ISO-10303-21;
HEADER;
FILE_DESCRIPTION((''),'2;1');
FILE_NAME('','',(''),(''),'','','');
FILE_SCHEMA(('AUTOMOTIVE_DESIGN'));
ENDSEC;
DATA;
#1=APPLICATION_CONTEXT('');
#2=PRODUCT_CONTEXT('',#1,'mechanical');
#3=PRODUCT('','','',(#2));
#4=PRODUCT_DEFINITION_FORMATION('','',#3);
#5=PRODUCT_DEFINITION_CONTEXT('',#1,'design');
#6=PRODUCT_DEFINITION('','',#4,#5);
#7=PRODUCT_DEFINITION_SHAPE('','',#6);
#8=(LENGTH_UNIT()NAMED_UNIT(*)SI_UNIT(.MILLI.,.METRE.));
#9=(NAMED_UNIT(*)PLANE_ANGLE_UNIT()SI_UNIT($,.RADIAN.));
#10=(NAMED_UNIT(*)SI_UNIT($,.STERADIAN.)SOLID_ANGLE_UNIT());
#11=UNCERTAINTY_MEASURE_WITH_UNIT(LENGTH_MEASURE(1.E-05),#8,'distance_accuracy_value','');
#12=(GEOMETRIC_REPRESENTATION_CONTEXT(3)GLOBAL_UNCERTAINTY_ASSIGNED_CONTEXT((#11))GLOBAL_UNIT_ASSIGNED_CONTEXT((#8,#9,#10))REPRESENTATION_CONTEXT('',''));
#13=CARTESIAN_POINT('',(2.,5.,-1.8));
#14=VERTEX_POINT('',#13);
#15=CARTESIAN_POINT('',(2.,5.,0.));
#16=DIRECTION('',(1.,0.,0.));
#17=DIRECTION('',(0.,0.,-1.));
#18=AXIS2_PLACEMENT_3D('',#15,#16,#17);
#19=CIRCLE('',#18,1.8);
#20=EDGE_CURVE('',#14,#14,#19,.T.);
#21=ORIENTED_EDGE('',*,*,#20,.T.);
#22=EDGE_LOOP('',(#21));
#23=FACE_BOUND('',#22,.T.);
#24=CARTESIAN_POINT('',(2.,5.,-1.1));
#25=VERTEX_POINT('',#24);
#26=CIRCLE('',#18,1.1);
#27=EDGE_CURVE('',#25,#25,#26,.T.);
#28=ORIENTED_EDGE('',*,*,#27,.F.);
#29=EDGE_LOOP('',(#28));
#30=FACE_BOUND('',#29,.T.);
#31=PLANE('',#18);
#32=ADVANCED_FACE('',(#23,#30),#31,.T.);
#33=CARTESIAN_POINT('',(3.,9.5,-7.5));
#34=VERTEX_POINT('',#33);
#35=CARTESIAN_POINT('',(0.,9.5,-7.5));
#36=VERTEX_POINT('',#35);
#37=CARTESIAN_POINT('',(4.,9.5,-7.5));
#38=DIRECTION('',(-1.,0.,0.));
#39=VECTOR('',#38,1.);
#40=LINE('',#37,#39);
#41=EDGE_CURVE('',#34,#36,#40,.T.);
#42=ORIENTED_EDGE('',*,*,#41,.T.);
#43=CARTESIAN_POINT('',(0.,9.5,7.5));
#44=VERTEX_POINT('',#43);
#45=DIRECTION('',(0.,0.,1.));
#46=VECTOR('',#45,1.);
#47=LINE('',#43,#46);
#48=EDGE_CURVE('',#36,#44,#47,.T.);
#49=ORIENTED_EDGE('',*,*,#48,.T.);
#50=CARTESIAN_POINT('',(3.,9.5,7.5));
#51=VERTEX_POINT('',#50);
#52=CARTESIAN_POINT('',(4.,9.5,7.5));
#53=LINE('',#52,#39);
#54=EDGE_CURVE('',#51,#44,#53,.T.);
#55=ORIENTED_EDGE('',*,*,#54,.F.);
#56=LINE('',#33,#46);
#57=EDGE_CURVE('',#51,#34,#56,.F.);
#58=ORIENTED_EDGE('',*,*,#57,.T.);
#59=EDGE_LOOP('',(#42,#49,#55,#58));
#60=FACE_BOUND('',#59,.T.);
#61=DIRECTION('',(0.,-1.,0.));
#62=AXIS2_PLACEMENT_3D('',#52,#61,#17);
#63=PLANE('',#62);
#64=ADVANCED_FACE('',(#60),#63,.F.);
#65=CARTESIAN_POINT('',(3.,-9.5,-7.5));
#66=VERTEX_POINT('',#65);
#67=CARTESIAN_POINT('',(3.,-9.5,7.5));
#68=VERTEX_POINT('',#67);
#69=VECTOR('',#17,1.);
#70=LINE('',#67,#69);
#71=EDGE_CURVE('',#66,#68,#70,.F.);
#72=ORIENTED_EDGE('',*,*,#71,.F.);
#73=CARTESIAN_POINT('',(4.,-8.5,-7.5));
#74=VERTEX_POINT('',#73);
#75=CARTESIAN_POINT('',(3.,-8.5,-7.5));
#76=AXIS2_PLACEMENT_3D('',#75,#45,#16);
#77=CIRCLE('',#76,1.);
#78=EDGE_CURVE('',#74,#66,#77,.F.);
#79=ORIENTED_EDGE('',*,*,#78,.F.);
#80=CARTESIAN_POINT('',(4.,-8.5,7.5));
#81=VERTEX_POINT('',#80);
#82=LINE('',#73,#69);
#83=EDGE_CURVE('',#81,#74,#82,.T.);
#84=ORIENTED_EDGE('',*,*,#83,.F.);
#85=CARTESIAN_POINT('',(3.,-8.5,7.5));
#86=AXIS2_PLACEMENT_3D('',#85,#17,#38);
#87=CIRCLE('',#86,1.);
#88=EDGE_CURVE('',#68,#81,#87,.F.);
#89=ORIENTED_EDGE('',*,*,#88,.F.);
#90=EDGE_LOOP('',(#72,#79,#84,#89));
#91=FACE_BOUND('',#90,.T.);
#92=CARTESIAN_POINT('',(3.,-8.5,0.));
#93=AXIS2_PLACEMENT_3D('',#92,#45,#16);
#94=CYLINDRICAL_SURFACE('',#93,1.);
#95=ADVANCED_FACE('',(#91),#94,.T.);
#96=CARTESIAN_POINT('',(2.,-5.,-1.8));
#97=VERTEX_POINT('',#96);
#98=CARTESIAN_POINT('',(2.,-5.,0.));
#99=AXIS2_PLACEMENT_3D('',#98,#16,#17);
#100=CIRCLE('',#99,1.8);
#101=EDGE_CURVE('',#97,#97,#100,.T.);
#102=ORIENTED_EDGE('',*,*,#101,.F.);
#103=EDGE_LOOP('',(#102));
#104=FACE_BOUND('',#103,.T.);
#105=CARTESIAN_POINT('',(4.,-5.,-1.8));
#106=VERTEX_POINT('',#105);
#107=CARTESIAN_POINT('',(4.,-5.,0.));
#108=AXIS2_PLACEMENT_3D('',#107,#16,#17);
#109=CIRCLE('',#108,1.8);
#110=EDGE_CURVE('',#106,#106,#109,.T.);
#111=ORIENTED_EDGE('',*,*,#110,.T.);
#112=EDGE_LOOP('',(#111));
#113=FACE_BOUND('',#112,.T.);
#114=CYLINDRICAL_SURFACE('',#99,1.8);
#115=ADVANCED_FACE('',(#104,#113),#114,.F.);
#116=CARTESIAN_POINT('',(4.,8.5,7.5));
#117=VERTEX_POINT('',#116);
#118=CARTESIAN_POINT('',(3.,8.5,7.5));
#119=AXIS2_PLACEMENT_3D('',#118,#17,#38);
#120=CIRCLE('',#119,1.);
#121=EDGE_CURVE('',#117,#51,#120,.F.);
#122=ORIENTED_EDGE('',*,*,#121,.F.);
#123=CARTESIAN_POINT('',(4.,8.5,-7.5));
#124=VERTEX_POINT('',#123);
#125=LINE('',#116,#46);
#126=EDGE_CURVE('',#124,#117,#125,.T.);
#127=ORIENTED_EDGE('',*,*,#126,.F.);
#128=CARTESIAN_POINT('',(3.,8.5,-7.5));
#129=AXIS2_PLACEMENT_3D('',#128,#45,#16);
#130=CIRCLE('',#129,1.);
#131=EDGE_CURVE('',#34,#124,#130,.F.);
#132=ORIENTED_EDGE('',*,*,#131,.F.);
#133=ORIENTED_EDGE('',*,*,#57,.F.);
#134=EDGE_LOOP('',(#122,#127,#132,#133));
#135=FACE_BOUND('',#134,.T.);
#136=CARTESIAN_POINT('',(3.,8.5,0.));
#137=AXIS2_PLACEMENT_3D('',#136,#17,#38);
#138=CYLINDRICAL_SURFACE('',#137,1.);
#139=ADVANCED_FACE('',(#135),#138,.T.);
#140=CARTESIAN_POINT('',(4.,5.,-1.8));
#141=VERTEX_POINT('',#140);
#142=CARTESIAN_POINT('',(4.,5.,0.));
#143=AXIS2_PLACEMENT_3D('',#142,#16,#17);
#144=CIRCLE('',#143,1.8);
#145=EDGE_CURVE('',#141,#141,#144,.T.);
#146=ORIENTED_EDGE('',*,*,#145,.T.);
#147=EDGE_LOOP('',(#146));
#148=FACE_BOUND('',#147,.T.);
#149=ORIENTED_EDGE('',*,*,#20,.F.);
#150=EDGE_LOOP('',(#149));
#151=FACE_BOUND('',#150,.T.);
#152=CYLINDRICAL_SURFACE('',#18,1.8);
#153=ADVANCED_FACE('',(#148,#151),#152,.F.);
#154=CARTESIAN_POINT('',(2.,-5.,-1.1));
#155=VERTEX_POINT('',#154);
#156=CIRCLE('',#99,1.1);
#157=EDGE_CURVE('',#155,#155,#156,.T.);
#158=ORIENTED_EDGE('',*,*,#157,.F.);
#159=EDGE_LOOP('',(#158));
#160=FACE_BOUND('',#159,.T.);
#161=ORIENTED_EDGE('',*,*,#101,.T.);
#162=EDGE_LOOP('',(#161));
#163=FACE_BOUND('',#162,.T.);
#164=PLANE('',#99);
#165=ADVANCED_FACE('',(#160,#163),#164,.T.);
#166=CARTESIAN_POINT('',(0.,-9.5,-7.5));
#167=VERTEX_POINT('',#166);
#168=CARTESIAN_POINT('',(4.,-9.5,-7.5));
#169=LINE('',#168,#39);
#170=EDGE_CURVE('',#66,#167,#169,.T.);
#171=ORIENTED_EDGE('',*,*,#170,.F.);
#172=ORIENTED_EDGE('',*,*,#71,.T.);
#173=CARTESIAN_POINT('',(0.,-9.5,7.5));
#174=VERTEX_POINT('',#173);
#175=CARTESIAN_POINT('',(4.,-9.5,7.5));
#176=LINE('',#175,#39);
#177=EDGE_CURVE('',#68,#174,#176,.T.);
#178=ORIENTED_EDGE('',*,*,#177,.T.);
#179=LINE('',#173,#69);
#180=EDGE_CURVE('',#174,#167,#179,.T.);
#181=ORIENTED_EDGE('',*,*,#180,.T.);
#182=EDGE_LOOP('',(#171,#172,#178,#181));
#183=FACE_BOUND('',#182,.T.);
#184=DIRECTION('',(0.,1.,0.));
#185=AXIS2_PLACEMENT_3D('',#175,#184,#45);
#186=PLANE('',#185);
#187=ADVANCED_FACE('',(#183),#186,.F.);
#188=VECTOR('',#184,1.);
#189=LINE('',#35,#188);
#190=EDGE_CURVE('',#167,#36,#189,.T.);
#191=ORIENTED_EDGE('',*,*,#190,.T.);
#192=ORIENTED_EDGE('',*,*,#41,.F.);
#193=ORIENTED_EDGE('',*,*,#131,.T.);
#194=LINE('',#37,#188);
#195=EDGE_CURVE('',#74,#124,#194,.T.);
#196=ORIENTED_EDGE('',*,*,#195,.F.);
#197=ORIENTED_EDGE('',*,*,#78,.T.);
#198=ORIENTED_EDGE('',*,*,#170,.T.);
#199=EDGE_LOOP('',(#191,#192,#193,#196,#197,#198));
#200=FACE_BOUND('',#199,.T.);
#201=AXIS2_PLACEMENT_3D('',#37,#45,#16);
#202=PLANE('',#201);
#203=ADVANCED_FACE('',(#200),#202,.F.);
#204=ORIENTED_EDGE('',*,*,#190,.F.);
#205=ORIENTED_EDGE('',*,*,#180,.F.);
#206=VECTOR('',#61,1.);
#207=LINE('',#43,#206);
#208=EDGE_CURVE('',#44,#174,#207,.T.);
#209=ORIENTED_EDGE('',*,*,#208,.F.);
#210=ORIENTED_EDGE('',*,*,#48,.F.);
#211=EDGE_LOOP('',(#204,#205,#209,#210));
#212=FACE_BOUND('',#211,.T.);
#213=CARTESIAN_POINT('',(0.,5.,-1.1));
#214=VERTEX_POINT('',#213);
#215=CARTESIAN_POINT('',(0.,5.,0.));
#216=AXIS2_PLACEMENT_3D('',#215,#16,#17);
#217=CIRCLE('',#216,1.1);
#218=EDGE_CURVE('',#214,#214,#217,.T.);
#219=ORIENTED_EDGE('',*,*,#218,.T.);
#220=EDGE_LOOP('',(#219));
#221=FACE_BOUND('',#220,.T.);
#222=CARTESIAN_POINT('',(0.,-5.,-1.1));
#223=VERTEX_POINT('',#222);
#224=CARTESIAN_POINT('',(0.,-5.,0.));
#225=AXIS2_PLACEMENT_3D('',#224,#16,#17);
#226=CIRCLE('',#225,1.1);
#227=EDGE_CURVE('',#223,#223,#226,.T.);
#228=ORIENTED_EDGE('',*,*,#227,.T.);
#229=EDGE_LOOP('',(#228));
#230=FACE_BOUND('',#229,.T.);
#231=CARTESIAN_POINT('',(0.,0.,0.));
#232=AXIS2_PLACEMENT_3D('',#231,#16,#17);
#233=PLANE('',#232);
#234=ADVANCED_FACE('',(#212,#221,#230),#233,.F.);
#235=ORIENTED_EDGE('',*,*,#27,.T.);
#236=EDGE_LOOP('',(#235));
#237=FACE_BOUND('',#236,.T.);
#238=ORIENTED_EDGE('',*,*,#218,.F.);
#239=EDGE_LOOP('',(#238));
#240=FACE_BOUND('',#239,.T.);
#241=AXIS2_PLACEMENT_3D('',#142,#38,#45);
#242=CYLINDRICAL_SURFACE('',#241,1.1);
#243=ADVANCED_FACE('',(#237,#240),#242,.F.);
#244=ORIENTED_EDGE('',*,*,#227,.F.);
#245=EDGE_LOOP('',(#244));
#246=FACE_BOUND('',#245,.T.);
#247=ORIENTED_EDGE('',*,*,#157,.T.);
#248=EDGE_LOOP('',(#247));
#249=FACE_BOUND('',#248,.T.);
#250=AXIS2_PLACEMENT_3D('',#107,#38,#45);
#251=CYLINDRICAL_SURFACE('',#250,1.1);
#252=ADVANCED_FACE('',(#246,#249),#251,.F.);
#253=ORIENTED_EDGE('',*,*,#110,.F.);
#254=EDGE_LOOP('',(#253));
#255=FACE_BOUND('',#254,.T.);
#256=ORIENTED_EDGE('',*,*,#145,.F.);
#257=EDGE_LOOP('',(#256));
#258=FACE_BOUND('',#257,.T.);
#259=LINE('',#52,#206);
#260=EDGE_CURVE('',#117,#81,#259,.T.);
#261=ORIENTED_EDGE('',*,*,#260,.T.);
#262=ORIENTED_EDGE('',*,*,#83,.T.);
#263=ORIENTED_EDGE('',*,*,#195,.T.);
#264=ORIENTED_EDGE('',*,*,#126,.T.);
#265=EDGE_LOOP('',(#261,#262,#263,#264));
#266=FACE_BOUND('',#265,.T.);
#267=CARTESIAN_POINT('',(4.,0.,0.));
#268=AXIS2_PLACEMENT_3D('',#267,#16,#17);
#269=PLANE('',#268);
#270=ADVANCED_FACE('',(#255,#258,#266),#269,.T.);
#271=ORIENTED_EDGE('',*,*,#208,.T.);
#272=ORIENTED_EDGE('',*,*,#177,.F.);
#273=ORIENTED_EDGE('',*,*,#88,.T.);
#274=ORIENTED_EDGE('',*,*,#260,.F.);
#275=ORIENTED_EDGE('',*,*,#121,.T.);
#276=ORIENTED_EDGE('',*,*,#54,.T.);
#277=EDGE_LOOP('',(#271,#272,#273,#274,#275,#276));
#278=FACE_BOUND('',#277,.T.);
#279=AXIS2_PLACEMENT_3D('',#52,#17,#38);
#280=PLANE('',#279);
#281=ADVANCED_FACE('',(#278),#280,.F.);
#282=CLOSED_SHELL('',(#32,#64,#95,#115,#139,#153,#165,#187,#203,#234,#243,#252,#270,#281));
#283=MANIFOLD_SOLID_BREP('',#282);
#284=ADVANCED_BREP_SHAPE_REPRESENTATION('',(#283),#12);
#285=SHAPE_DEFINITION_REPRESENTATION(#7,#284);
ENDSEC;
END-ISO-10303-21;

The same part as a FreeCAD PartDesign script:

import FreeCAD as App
import Part
import Sketcher
Q = App.Units.Quantity


def edges_at(feature, points):
    """Names of the edges that pass closest to the given points."""
    edges = feature.Shape.Edges
    near = lambda p: min(range(len(edges)), key=lambda i: edges[i].distToShape(Part.Vertex(*p))[0])
    return sorted({f"Edge{near(p) + 1}" for p in points})


def add_polygon(sketch, points):
    """Adds a closed chain of lines whose ends are joined by coincident constraints."""
    first, n = sketch.GeometryCount, len(points)
    for a, b in zip(points, points[1:] + points[:1]):
        sketch.addGeometry(Part.LineSegment(App.Vector(*a, 0), App.Vector(*b, 0)), False)
    for i in range(n):
        sketch.addConstraint(Sketcher.Constraint("Coincident", first + i, 2, first + (i + 1) % n, 1))

doc = App.newDocument("Part")
params = doc.addObject("Spreadsheet::Sheet", "Params")
for row, (alias, value) in enumerate([
    ("sketch1_diameter", "2.2 mm"),
    ("sketch1_width", "19 mm"),
    ("sketch1_height", "15 mm"),
    ("pad1_length", "4 mm"),
    ("sketch2_diameter", "3.6 mm"),
    ("pocket1_length", "2 mm"),
    ("fillet_radius", "1 mm"),
], start=1):
    params.set(f"A{row}", alias)
    params.set(f"B{row}", "=" + value)
    params.setAlias(f"B{row}", alias)

body = doc.addObject("PartDesign::Body", "Body")

sketch1 = body.newObject("Sketcher::SketchObject", "Sketch")
sketch1.AttachmentSupport = (doc.getObject("YZ_Plane"), [""])
sketch1.MapMode = "FlatFace"
add_polygon(sketch1, [(9.5, 7.5), (-9.5, 7.5), (-9.5, -7.5), (9.5, -7.5)])
sketch1.addGeometry(Part.Circle(App.Vector(-5, 0, 0), App.Vector(0, 0, 1), 1.1), False)
sketch1.addGeometry(Part.Circle(App.Vector(5, 0, 0), App.Vector(0, 0, 1), 1.1), False)
sketch1.addConstraint([
    Sketcher.Constraint("Horizontal", 0),
    Sketcher.Constraint("Vertical", 1),
    Sketcher.Constraint("Horizontal", 2),
    Sketcher.Constraint("Vertical", 3),
    Sketcher.Constraint("Equal", 4, 5),
    Sketcher.Constraint("Symmetric", 4, 3, 5, 3, -1, 1),
    Sketcher.Constraint("Symmetric", 0, 2, 2, 2, -1, 1),
    Sketcher.Constraint("PointOnObject", 4, 3, -1),
    Sketcher.Constraint("Diameter", 4, Q("2.2 mm")),
    Sketcher.Constraint("DistanceX", 0, 2, 0, 1, Q("19 mm")),
    Sketcher.Constraint("DistanceY", 1, 2, 1, 1, Q("15 mm")),
    Sketcher.Constraint("DistanceX", 4, 3, -1, 1, Q("5 mm")),
])
sketch1.setExpression("Constraints[12]", "Params.sketch1_diameter")
sketch1.setExpression("Constraints[13]", "Params.sketch1_width")
sketch1.setExpression("Constraints[14]", "Params.sketch1_height")
pad1 = body.newObject("PartDesign::Pad", "Pad")
pad1.Profile = sketch1
pad1.setExpression("Length", "Params.pad1_length")

sketch2 = body.newObject("Sketcher::SketchObject", "Sketch001")
sketch2.AttachmentSupport = (doc.getObject("YZ_Plane"), [""])
sketch2.MapMode = "FlatFace"
sketch2.AttachmentOffset = App.Placement(App.Vector(0, 0, 4), App.Rotation())
sketch2.addGeometry([
    Part.Circle(App.Vector(5, 0, 0), App.Vector(0, 0, 1), 1.8),
    Part.Circle(App.Vector(-5, 0, 0), App.Vector(0, 0, 1), 1.8),
], False)
sketch2.addConstraint([
    Sketcher.Constraint("Equal", 0, 1),
    Sketcher.Constraint("Symmetric", 0, 3, 1, 3, -1, 1),
    Sketcher.Constraint("PointOnObject", 0, 3, -1),
    Sketcher.Constraint("Diameter", 0, Q("3.6 mm")),
    Sketcher.Constraint("DistanceX", -1, 1, 0, 3, Q("5 mm")),
])
sketch2.setExpression("Constraints[3]", "Params.sketch2_diameter")
pocket1 = body.newObject("PartDesign::Pocket", "Pocket")
pocket1.Profile = sketch2
pocket1.setExpression("Length", "Params.pocket1_length")
doc.recompute()

fillet = body.newObject("PartDesign::Fillet", "Fillet")
fillet.Base = (pocket1, edges_at(pocket1, [(4, -9.5, 0), (4, 9.5, 0)]))
fillet.setExpression("Radius", "Params.fillet_radius")

doc.recompute()
